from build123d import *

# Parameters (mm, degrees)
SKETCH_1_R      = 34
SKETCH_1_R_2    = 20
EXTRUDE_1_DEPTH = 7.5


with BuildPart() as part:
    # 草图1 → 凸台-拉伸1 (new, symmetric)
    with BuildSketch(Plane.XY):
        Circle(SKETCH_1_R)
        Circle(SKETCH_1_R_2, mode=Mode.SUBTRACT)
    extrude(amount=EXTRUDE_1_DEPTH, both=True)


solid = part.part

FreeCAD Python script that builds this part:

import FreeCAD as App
import Part
import Sketcher
from FreeCAD import Vector

doc = App.newDocument("Part")
params = doc.addObject("Spreadsheet::Sheet", "Params")
for row, (alias, value) in enumerate([
    ("sketch1_diameter", "68 mm"),
    ("sketch1_diameter2", "40 mm"),
    ("pad1_length", "15 mm"),
], start=1):
    params.set(f"A{row}", alias)
    params.set(f"B{row}", "=" + value)
    params.setAlias(f"B{row}", alias)

body = doc.addObject("PartDesign::Body", "Body")

sketch1 = body.newObject("Sketcher::SketchObject", "Sketch")
sketch1.AttachmentSupport = (doc.getObject("XY_Plane"), [""])
sketch1.MapMode = "FlatFace"
sketch1.addGeometry([
    Part.Circle(Vector(0, 0, 0), Vector(0, 0, 1), 34),
    Part.Circle(Vector(0, 0, 0), Vector(0, 0, 1), 20),
], False)
sketch1.addConstraint([
    Sketcher.Constraint("Coincident", 0, 3, -1, 1),
    Sketcher.Constraint("Coincident", 1, 3, -1, 1),
    Sketcher.Constraint("Diameter", 0, 68.0),
    Sketcher.Constraint("Diameter", 1, 40.0),
])
sketch1.setExpression("Constraints[2]", "Params.sketch1_diameter")
sketch1.setExpression("Constraints[3]", "Params.sketch1_diameter2")
pad1 = body.newObject("PartDesign::Pad", "Pad")
pad1.Profile = sketch1
pad1.setExpression("Length", "Params.pad1_length")
pad1.Midplane = True

doc.recompute()
